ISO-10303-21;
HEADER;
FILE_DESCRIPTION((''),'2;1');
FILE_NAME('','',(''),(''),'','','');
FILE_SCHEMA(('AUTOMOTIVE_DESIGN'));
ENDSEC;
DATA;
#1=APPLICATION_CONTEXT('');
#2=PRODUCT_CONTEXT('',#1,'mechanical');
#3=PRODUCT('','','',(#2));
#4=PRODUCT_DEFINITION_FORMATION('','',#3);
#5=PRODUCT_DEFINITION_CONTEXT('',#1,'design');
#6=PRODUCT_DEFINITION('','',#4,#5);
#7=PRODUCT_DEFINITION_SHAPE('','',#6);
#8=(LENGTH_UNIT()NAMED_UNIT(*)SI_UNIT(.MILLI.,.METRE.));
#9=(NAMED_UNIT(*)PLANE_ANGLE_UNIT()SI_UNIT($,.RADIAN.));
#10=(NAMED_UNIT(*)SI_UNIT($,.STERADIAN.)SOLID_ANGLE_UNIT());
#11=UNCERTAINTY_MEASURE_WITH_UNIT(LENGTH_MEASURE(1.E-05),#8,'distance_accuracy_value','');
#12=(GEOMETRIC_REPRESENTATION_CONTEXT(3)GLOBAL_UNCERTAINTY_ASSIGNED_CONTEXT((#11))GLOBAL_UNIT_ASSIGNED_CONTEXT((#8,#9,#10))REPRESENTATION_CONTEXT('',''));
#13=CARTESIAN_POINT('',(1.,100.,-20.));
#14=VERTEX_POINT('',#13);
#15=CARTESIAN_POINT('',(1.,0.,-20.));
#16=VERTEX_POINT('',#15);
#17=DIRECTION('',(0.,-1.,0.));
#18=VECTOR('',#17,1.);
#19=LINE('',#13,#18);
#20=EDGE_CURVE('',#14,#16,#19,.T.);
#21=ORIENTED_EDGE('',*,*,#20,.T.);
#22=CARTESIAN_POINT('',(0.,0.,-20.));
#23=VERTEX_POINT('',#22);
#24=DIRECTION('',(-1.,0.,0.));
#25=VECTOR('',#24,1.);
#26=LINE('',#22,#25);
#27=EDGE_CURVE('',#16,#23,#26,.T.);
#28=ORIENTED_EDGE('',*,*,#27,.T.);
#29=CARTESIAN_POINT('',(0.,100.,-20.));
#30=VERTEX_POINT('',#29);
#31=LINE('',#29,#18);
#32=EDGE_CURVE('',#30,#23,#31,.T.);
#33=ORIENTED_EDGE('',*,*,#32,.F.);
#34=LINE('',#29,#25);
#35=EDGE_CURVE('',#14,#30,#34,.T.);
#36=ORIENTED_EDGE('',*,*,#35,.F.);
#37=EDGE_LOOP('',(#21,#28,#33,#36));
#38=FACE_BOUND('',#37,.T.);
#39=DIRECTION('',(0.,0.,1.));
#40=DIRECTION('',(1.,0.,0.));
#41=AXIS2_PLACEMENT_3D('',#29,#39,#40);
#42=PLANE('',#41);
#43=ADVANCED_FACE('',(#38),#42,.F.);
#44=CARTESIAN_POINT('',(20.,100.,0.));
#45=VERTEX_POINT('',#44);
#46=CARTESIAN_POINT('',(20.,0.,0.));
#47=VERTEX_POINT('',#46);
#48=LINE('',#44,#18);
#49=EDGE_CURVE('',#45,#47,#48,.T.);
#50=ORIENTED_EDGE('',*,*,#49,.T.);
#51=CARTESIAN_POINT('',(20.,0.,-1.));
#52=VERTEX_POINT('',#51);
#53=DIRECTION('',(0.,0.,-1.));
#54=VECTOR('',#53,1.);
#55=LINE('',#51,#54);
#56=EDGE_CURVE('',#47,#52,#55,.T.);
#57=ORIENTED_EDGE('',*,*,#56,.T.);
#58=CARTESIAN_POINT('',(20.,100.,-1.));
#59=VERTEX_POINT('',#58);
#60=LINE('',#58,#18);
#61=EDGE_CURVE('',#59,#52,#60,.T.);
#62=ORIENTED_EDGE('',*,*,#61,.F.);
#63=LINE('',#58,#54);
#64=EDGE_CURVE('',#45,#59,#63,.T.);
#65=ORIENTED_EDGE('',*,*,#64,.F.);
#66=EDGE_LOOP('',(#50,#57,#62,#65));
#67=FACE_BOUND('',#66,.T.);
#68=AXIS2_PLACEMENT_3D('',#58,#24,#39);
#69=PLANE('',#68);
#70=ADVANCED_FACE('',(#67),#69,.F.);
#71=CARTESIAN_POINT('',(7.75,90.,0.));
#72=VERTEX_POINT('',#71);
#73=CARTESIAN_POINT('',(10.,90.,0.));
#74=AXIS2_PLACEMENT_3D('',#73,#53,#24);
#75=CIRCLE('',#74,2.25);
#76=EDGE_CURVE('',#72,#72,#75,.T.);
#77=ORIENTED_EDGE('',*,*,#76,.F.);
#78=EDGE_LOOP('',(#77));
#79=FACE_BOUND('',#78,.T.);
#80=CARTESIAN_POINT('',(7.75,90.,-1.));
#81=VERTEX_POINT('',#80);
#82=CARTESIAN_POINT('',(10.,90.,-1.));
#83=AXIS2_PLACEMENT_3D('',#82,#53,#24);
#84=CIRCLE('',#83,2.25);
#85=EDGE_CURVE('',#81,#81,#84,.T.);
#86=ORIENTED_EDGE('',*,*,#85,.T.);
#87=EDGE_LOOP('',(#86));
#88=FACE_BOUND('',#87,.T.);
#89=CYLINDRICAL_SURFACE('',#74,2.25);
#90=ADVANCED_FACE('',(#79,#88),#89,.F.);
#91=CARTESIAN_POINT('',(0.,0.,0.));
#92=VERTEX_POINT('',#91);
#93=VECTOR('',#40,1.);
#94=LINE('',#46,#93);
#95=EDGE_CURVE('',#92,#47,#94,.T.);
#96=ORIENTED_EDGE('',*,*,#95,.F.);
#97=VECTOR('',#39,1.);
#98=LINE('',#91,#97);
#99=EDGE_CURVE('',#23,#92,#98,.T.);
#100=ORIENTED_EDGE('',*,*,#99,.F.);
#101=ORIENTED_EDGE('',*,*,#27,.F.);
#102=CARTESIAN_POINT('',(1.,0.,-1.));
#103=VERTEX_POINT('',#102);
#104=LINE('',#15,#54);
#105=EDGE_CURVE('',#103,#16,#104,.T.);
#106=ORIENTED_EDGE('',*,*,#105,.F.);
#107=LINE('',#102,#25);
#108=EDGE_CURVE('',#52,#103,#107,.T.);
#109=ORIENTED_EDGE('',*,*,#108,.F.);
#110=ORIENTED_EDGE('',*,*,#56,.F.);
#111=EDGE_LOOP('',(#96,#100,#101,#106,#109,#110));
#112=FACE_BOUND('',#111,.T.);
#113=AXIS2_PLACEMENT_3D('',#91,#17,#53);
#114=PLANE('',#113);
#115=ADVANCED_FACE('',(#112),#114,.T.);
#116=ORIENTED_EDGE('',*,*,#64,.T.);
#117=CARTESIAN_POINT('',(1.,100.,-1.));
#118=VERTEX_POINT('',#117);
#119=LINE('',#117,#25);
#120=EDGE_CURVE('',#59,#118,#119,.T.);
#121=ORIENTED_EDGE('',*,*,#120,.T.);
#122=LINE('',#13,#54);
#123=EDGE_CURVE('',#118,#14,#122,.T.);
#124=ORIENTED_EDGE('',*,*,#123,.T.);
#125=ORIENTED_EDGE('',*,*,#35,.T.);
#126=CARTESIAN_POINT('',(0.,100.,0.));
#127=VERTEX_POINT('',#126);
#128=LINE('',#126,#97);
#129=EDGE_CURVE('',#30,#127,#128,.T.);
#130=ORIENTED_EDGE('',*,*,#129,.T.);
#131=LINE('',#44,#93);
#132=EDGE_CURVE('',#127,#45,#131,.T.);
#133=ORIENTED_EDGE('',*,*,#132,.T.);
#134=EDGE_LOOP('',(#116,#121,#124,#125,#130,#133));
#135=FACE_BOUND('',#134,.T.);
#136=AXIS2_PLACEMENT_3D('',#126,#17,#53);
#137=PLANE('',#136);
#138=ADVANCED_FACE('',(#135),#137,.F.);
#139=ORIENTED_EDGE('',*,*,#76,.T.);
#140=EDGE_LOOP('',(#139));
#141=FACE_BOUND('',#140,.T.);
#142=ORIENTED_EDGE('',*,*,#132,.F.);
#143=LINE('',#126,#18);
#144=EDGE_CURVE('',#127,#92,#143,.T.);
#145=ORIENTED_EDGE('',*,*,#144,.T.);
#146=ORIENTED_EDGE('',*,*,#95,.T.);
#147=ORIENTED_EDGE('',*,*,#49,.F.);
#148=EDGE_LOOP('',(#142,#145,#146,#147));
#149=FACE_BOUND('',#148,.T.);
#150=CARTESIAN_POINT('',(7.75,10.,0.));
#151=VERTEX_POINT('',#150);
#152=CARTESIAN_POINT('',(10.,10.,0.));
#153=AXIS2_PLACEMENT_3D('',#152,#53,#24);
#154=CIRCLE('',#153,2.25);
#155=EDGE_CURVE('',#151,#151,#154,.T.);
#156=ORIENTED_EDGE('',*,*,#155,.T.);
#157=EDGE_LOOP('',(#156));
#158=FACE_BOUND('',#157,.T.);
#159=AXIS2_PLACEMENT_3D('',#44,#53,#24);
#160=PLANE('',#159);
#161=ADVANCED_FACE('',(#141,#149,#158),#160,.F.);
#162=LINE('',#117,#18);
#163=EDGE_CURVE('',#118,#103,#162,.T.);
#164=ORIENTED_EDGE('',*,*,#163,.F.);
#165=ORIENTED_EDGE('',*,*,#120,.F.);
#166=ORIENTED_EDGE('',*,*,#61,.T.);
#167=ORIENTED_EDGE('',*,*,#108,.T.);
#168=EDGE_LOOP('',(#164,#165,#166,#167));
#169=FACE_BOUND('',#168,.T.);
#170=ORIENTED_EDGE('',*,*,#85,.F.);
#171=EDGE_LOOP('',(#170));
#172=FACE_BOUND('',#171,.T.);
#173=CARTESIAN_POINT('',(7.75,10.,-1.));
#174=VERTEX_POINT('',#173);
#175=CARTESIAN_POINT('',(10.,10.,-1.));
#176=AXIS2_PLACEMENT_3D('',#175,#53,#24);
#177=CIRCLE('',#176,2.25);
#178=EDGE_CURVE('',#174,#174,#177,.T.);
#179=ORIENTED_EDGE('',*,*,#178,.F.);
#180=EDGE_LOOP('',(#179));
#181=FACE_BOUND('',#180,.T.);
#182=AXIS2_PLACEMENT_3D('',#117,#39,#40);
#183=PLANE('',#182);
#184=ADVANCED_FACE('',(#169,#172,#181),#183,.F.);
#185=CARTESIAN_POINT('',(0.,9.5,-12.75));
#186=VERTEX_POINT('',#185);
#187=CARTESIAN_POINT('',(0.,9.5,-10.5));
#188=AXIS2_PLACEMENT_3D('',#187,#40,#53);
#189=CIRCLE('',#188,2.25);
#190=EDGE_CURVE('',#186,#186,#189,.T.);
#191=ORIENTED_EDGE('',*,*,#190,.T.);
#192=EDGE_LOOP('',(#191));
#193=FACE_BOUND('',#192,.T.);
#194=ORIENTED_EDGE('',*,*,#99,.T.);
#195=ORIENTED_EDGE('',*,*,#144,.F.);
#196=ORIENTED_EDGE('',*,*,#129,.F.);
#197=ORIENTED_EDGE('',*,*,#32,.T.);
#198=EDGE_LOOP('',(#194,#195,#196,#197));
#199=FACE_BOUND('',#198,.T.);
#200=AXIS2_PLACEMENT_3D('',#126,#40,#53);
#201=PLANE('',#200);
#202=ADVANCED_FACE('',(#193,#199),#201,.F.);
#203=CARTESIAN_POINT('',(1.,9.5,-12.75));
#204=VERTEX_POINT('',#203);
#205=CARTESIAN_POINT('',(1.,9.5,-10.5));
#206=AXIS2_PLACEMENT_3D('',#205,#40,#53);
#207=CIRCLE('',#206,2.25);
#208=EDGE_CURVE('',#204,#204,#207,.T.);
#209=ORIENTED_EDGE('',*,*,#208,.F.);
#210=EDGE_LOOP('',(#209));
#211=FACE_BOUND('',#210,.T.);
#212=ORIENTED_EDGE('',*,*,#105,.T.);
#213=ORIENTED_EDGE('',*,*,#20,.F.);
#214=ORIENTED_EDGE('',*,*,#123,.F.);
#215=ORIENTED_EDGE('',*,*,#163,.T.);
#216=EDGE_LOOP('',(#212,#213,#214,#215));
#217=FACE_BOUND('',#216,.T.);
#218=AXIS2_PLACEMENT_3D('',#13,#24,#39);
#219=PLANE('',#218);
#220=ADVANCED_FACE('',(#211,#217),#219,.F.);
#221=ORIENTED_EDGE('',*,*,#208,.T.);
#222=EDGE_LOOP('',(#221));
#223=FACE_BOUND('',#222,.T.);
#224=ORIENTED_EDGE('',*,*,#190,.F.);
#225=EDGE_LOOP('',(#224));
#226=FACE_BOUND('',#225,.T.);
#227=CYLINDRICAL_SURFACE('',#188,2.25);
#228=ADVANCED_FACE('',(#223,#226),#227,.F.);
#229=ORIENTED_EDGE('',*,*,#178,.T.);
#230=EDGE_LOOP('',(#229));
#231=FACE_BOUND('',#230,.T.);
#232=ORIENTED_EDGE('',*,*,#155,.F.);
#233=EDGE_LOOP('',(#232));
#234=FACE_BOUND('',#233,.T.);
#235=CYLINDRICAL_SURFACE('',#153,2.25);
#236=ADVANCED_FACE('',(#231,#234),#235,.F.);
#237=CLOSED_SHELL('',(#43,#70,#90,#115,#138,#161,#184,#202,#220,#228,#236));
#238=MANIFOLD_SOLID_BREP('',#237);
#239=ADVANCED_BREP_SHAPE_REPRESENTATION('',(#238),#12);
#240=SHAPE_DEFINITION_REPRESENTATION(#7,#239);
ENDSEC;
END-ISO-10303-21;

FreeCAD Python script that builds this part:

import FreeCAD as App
import Part
import Sketcher
from FreeCAD import Vector
Q = App.Units.Quantity


def add_polygon(sketch, points):
    """Adds a closed chain of lines whose ends are joined by coincident constraints."""
    first, n = sketch.GeometryCount, len(points)
    for a, b in zip(points, points[1:] + points[:1]):
        sketch.addGeometry(Part.LineSegment(App.Vector(*a, 0), App.Vector(*b, 0)), False)
    for i in range(n):
        sketch.addConstraint(Sketcher.Constraint("Coincident", first + i, 2, first + (i + 1) % n, 1))

doc = App.newDocument("Part")
params = doc.addObject("Spreadsheet::Sheet", "Params")
for row, (alias, value) in enumerate([
    ("sketch1_width", "20 mm"),
    ("sketch1_width2", "19 mm"),
    ("pad1_length", "100 mm"),
    ("sketch2_diameter", "4.5 mm"),
    ("sketch3_diameter", "4.5 mm"),
], start=1):
    params.set(f"A{row}", alias)
    params.set(f"B{row}", "=" + value)
    params.setAlias(f"B{row}", alias)

body = doc.addObject("PartDesign::Body", "Body")

sketch1 = body.newObject("Sketcher::SketchObject", "Sketch")
sketch1.AttachmentSupport = (doc.getObject("XZ_Plane"), [""])
sketch1.MapMode = "FlatFace"
add_polygon(sketch1, [(0, -20), (0, 0), (20, 0), (20, -1), (1, -1), (1, -20)])
sketch1.addConstraint(Sketcher.Constraint("Vertical", 0))
sketch1.addConstraint(Sketcher.Constraint("Horizontal", 1))
sketch1.addConstraint(Sketcher.Constraint("Vertical", 2))
sketch1.addConstraint(Sketcher.Constraint("Horizontal", 3))
sketch1.addConstraint(Sketcher.Constraint("Vertical", 4))
sketch1.addConstraint(Sketcher.Constraint("Horizontal", 5))
sketch1.addConstraint(Sketcher.Constraint("Coincident", 0, 2, -1, 1))
sketch1.addConstraint(Sketcher.Constraint("Equal", 1, 0))
sketch1.addConstraint(Sketcher.Constraint("Equal", 5, 2))
sketch1.addConstraint(Sketcher.Constraint("DistanceX", 1, 1, 1, 2, Q("20 mm")))
sketch1.addConstraint(Sketcher.Constraint("DistanceX", 3, 2, 3, 1, Q("19 mm")))
sketch1.setExpression("Constraints[15]", "Params.sketch1_width")
sketch1.setExpression("Constraints[16]", "Params.sketch1_width2")
pad1 = body.newObject("PartDesign::Pad", "Pad")
pad1.Profile = sketch1
pad1.setExpression("Length", "Params.pad1_length")
pad1.Reversed = True

sketch2 = body.newObject("Sketcher::SketchObject", "Sketch001")
sketch2.AttachmentSupport = (doc.getObject("XY_Plane"), [""])
sketch2.MapMode = "FlatFace"
sketch2.AttachmentOffset = App.Placement(Vector(0, 0, -1), App.Rotation())
sketch2.addGeometry(Part.Circle(Vector(10, 10, 0), Vector(0, 0, 1), 2.2), False)
sketch2.addGeometry(Part.Circle(Vector(10, 90, 0), Vector(0, 0, 1), 2.2), False)
sketch2.addConstraint(Sketcher.Constraint("Equal", 0, 1))
sketch2.addConstraint(Sketcher.Constraint("Vertical", 0, 3, 1, 3))
sketch2.addConstraint(Sketcher.Constraint("Diameter", 0, Q("4.5 mm")))
sketch2.addConstraint(Sketcher.Constraint("DistanceX", -1, 1, 0, 3, Q("10 mm")))
sketch2.addConstraint(Sketcher.Constraint("DistanceY", -1, 1, 0, 3, Q("10 mm")))
sketch2.addConstraint(Sketcher.Constraint("DistanceY", -1, 1, 1, 3, Q("90 mm")))
sketch2.setExpression("Constraints[2]", "Params.sketch2_diameter")
pocket1 = body.newObject("PartDesign::Pocket", "Pocket")
pocket1.Profile = sketch2
pocket1.Type = "ThroughAll"
pocket1.Reversed = True

sketch3 = body.newObject("Sketcher::SketchObject", "Sketch002")
sketch3.AttachmentSupport = (doc.getObject("YZ_Plane"), [""])
sketch3.MapMode = "FlatFace"
sketch3.AttachmentOffset = App.Placement(Vector(0, 0, 1), App.Rotation())
sketch3.addGeometry(Part.Circle(Vector(9.5, -10.5, 0), Vector(0, 0, 1), 2.2), False)
sketch3.addConstraint(Sketcher.Constraint("Diameter", 0, Q("4.5 mm")))
sketch3.addConstraint(Sketcher.Constraint("DistanceX", -1, 1, 0, 3, Q("9.5 mm")))
sketch3.addConstraint(Sketcher.Constraint("DistanceY", 0, 3, -1, 1, Q("10.5 mm")))
sketch3.setExpression("Constraints[0]", "Params.sketch3_diameter")
pocket2 = body.newObject("PartDesign::Pocket", "Pocket001")
pocket2.Profile = sketch3
pocket2.Type = "ThroughAll"

doc.recompute()
